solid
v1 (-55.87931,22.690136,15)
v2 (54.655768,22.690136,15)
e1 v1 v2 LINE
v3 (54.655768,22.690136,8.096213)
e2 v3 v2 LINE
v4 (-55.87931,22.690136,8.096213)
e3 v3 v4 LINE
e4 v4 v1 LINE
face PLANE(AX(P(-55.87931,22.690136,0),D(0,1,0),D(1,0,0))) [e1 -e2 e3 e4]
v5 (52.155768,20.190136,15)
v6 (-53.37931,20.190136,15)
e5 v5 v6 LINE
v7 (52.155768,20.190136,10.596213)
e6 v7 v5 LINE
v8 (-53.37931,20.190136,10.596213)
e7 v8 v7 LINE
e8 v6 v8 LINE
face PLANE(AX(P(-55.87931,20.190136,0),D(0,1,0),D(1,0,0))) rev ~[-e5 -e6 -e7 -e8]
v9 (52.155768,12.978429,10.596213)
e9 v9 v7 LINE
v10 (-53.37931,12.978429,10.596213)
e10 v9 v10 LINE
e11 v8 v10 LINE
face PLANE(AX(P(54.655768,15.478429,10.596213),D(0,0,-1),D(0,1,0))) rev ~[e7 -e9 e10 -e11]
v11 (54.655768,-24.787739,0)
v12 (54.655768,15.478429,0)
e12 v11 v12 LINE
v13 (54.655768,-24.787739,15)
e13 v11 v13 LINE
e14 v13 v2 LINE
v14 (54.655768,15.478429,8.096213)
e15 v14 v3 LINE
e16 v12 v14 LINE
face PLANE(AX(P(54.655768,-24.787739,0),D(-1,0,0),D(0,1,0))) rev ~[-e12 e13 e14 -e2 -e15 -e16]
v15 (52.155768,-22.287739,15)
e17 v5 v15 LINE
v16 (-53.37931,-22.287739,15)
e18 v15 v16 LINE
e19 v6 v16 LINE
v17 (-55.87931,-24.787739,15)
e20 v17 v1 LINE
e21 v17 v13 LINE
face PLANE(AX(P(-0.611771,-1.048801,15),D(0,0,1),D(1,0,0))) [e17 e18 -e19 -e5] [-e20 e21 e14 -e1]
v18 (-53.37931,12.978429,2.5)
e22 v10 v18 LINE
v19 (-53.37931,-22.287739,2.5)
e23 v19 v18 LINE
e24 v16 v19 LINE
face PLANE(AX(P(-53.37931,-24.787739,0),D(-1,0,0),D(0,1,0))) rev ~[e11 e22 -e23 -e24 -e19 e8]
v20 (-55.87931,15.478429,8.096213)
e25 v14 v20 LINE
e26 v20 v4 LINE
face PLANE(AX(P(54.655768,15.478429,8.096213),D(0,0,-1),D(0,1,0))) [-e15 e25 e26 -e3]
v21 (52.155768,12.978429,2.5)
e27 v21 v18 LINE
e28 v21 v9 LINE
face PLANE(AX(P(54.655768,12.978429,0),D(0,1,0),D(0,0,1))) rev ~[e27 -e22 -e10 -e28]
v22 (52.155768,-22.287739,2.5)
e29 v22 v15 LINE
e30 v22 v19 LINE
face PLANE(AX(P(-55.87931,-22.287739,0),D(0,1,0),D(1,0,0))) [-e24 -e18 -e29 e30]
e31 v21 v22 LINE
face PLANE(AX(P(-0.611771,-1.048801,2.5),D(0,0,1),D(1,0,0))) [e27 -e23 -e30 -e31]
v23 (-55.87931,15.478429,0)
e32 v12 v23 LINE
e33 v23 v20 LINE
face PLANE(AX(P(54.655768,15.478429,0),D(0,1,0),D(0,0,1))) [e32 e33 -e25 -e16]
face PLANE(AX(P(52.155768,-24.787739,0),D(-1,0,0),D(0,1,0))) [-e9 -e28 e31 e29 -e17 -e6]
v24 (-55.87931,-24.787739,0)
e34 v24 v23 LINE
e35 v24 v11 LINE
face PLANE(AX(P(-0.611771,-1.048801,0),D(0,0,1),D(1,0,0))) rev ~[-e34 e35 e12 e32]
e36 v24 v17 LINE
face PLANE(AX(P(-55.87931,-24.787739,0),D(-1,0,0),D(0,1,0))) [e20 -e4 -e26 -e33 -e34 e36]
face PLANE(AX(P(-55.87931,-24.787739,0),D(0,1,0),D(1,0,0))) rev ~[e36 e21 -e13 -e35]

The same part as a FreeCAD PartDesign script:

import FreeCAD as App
import Part
import Sketcher
from FreeCAD import Vector
Q = App.Units.Quantity


def faces_at(feature, points):
    """Names of the faces that lie closest to the given points."""
    faces = feature.Shape.Faces
    near = lambda p: min(range(len(faces)), key=lambda i: faces[i].distToShape(Part.Vertex(*p))[0])
    return sorted({f"Face{near(p) + 1}" for p in points})

doc = App.newDocument("Part")
body = doc.addObject("PartDesign::Body", "Body")

sketch1 = body.newObject("Sketcher::SketchObject", "Sketch")
sketch1.AttachmentSupport = (doc.getObject("XY_Plane"), [""])
sketch1.MapMode = "FlatFace"
sketch1.addGeometry([
    Part.LineSegment(Vector(-56, 23, 0), Vector(-56, -25, 0)),
    Part.LineSegment(Vector(-56, -25, 0), Vector(55, -25, 0)),
    Part.LineSegment(Vector(55, -25, 0), Vector(55, 23, 0)),
    Part.LineSegment(Vector(55, 23, 0), Vector(-56, 23, 0)),
], False)
sketch1.addConstraint([
    Sketcher.Constraint("Coincident", 0, 2, 1, 1),
    Sketcher.Constraint("Coincident", 1, 2, 2, 1),
    Sketcher.Constraint("Coincident", 2, 2, 3, 1),
    Sketcher.Constraint("Coincident", 3, 2, 0, 1),
    Sketcher.Constraint("Vertical", 0),
    Sketcher.Constraint("Horizontal", 1),
    Sketcher.Constraint("Vertical", 2),
    Sketcher.Constraint("Horizontal", 3),
    Sketcher.Constraint("DistanceX", 1, 1, 1, 2, Q("110.535078 mm")),
    Sketcher.Constraint("DistanceY", 0, 2, 0, 1, Q("47.477875 mm")),
    Sketcher.Constraint("DistanceX", 0, 2, -1, 1, Q("55.87931 mm")),
    Sketcher.Constraint("DistanceY", 0, 2, -1, 1, Q("24.787739 mm")),
])
pad1 = body.newObject("PartDesign::Pad", "Pad")
pad1.Profile = sketch1
pad1.Length = 15

sketch2 = body.newObject("Sketcher::SketchObject", "Sketch001")
sketch2.AttachmentSupport = (doc.getObject("YZ_Plane"), [""])
sketch2.MapMode = "FlatFace"
sketch2.AttachmentOffset = App.Placement(Vector(0, 0, 54.655768), App.Rotation())
sketch2.addGeometry([
    Part.LineSegment(Vector(15, 8, 0), Vector(15, 0, 0)),
    Part.LineSegment(Vector(15, 0, 0), Vector(23, 0, 0)),
    Part.LineSegment(Vector(23, 0, 0), Vector(23, 8, 0)),
    Part.LineSegment(Vector(23, 8, 0), Vector(15, 8, 0)),
], False)
sketch2.addConstraint([
    Sketcher.Constraint("Coincident", 0, 2, 1, 1),
    Sketcher.Constraint("Coincident", 1, 2, 2, 1),
    Sketcher.Constraint("Coincident", 2, 2, 3, 1),
    Sketcher.Constraint("Coincident", 3, 2, 0, 1),
    Sketcher.Constraint("Vertical", 0),
    Sketcher.Constraint("Horizontal", 1),
    Sketcher.Constraint("Vertical", 2),
    Sketcher.Constraint("Horizontal", 3),
    Sketcher.Constraint("PointOnObject", 0, 2, -1),
    Sketcher.Constraint("DistanceX", 1, 1, 1, 2, Q("7.211707 mm")),
    Sketcher.Constraint("DistanceY", 0, 2, 0, 1, Q("8.096213 mm")),
    Sketcher.Constraint("DistanceX", -1, 1, 0, 2, Q("15.478429 mm")),
])
pocket1 = body.newObject("PartDesign::Pocket", "Pocket")
pocket1.Profile = sketch2
pocket1.Type = "ThroughAll"
doc.recompute()

thickness = body.newObject("PartDesign::Thickness", "Thickness")
thickness.Base = (pocket1, faces_at(pocket1, [(-0.612, -1.049, 15)]))
thickness.Value = 2.5
thickness.Reversed = True
thickness.Join = "Intersection"

doc.recompute()
